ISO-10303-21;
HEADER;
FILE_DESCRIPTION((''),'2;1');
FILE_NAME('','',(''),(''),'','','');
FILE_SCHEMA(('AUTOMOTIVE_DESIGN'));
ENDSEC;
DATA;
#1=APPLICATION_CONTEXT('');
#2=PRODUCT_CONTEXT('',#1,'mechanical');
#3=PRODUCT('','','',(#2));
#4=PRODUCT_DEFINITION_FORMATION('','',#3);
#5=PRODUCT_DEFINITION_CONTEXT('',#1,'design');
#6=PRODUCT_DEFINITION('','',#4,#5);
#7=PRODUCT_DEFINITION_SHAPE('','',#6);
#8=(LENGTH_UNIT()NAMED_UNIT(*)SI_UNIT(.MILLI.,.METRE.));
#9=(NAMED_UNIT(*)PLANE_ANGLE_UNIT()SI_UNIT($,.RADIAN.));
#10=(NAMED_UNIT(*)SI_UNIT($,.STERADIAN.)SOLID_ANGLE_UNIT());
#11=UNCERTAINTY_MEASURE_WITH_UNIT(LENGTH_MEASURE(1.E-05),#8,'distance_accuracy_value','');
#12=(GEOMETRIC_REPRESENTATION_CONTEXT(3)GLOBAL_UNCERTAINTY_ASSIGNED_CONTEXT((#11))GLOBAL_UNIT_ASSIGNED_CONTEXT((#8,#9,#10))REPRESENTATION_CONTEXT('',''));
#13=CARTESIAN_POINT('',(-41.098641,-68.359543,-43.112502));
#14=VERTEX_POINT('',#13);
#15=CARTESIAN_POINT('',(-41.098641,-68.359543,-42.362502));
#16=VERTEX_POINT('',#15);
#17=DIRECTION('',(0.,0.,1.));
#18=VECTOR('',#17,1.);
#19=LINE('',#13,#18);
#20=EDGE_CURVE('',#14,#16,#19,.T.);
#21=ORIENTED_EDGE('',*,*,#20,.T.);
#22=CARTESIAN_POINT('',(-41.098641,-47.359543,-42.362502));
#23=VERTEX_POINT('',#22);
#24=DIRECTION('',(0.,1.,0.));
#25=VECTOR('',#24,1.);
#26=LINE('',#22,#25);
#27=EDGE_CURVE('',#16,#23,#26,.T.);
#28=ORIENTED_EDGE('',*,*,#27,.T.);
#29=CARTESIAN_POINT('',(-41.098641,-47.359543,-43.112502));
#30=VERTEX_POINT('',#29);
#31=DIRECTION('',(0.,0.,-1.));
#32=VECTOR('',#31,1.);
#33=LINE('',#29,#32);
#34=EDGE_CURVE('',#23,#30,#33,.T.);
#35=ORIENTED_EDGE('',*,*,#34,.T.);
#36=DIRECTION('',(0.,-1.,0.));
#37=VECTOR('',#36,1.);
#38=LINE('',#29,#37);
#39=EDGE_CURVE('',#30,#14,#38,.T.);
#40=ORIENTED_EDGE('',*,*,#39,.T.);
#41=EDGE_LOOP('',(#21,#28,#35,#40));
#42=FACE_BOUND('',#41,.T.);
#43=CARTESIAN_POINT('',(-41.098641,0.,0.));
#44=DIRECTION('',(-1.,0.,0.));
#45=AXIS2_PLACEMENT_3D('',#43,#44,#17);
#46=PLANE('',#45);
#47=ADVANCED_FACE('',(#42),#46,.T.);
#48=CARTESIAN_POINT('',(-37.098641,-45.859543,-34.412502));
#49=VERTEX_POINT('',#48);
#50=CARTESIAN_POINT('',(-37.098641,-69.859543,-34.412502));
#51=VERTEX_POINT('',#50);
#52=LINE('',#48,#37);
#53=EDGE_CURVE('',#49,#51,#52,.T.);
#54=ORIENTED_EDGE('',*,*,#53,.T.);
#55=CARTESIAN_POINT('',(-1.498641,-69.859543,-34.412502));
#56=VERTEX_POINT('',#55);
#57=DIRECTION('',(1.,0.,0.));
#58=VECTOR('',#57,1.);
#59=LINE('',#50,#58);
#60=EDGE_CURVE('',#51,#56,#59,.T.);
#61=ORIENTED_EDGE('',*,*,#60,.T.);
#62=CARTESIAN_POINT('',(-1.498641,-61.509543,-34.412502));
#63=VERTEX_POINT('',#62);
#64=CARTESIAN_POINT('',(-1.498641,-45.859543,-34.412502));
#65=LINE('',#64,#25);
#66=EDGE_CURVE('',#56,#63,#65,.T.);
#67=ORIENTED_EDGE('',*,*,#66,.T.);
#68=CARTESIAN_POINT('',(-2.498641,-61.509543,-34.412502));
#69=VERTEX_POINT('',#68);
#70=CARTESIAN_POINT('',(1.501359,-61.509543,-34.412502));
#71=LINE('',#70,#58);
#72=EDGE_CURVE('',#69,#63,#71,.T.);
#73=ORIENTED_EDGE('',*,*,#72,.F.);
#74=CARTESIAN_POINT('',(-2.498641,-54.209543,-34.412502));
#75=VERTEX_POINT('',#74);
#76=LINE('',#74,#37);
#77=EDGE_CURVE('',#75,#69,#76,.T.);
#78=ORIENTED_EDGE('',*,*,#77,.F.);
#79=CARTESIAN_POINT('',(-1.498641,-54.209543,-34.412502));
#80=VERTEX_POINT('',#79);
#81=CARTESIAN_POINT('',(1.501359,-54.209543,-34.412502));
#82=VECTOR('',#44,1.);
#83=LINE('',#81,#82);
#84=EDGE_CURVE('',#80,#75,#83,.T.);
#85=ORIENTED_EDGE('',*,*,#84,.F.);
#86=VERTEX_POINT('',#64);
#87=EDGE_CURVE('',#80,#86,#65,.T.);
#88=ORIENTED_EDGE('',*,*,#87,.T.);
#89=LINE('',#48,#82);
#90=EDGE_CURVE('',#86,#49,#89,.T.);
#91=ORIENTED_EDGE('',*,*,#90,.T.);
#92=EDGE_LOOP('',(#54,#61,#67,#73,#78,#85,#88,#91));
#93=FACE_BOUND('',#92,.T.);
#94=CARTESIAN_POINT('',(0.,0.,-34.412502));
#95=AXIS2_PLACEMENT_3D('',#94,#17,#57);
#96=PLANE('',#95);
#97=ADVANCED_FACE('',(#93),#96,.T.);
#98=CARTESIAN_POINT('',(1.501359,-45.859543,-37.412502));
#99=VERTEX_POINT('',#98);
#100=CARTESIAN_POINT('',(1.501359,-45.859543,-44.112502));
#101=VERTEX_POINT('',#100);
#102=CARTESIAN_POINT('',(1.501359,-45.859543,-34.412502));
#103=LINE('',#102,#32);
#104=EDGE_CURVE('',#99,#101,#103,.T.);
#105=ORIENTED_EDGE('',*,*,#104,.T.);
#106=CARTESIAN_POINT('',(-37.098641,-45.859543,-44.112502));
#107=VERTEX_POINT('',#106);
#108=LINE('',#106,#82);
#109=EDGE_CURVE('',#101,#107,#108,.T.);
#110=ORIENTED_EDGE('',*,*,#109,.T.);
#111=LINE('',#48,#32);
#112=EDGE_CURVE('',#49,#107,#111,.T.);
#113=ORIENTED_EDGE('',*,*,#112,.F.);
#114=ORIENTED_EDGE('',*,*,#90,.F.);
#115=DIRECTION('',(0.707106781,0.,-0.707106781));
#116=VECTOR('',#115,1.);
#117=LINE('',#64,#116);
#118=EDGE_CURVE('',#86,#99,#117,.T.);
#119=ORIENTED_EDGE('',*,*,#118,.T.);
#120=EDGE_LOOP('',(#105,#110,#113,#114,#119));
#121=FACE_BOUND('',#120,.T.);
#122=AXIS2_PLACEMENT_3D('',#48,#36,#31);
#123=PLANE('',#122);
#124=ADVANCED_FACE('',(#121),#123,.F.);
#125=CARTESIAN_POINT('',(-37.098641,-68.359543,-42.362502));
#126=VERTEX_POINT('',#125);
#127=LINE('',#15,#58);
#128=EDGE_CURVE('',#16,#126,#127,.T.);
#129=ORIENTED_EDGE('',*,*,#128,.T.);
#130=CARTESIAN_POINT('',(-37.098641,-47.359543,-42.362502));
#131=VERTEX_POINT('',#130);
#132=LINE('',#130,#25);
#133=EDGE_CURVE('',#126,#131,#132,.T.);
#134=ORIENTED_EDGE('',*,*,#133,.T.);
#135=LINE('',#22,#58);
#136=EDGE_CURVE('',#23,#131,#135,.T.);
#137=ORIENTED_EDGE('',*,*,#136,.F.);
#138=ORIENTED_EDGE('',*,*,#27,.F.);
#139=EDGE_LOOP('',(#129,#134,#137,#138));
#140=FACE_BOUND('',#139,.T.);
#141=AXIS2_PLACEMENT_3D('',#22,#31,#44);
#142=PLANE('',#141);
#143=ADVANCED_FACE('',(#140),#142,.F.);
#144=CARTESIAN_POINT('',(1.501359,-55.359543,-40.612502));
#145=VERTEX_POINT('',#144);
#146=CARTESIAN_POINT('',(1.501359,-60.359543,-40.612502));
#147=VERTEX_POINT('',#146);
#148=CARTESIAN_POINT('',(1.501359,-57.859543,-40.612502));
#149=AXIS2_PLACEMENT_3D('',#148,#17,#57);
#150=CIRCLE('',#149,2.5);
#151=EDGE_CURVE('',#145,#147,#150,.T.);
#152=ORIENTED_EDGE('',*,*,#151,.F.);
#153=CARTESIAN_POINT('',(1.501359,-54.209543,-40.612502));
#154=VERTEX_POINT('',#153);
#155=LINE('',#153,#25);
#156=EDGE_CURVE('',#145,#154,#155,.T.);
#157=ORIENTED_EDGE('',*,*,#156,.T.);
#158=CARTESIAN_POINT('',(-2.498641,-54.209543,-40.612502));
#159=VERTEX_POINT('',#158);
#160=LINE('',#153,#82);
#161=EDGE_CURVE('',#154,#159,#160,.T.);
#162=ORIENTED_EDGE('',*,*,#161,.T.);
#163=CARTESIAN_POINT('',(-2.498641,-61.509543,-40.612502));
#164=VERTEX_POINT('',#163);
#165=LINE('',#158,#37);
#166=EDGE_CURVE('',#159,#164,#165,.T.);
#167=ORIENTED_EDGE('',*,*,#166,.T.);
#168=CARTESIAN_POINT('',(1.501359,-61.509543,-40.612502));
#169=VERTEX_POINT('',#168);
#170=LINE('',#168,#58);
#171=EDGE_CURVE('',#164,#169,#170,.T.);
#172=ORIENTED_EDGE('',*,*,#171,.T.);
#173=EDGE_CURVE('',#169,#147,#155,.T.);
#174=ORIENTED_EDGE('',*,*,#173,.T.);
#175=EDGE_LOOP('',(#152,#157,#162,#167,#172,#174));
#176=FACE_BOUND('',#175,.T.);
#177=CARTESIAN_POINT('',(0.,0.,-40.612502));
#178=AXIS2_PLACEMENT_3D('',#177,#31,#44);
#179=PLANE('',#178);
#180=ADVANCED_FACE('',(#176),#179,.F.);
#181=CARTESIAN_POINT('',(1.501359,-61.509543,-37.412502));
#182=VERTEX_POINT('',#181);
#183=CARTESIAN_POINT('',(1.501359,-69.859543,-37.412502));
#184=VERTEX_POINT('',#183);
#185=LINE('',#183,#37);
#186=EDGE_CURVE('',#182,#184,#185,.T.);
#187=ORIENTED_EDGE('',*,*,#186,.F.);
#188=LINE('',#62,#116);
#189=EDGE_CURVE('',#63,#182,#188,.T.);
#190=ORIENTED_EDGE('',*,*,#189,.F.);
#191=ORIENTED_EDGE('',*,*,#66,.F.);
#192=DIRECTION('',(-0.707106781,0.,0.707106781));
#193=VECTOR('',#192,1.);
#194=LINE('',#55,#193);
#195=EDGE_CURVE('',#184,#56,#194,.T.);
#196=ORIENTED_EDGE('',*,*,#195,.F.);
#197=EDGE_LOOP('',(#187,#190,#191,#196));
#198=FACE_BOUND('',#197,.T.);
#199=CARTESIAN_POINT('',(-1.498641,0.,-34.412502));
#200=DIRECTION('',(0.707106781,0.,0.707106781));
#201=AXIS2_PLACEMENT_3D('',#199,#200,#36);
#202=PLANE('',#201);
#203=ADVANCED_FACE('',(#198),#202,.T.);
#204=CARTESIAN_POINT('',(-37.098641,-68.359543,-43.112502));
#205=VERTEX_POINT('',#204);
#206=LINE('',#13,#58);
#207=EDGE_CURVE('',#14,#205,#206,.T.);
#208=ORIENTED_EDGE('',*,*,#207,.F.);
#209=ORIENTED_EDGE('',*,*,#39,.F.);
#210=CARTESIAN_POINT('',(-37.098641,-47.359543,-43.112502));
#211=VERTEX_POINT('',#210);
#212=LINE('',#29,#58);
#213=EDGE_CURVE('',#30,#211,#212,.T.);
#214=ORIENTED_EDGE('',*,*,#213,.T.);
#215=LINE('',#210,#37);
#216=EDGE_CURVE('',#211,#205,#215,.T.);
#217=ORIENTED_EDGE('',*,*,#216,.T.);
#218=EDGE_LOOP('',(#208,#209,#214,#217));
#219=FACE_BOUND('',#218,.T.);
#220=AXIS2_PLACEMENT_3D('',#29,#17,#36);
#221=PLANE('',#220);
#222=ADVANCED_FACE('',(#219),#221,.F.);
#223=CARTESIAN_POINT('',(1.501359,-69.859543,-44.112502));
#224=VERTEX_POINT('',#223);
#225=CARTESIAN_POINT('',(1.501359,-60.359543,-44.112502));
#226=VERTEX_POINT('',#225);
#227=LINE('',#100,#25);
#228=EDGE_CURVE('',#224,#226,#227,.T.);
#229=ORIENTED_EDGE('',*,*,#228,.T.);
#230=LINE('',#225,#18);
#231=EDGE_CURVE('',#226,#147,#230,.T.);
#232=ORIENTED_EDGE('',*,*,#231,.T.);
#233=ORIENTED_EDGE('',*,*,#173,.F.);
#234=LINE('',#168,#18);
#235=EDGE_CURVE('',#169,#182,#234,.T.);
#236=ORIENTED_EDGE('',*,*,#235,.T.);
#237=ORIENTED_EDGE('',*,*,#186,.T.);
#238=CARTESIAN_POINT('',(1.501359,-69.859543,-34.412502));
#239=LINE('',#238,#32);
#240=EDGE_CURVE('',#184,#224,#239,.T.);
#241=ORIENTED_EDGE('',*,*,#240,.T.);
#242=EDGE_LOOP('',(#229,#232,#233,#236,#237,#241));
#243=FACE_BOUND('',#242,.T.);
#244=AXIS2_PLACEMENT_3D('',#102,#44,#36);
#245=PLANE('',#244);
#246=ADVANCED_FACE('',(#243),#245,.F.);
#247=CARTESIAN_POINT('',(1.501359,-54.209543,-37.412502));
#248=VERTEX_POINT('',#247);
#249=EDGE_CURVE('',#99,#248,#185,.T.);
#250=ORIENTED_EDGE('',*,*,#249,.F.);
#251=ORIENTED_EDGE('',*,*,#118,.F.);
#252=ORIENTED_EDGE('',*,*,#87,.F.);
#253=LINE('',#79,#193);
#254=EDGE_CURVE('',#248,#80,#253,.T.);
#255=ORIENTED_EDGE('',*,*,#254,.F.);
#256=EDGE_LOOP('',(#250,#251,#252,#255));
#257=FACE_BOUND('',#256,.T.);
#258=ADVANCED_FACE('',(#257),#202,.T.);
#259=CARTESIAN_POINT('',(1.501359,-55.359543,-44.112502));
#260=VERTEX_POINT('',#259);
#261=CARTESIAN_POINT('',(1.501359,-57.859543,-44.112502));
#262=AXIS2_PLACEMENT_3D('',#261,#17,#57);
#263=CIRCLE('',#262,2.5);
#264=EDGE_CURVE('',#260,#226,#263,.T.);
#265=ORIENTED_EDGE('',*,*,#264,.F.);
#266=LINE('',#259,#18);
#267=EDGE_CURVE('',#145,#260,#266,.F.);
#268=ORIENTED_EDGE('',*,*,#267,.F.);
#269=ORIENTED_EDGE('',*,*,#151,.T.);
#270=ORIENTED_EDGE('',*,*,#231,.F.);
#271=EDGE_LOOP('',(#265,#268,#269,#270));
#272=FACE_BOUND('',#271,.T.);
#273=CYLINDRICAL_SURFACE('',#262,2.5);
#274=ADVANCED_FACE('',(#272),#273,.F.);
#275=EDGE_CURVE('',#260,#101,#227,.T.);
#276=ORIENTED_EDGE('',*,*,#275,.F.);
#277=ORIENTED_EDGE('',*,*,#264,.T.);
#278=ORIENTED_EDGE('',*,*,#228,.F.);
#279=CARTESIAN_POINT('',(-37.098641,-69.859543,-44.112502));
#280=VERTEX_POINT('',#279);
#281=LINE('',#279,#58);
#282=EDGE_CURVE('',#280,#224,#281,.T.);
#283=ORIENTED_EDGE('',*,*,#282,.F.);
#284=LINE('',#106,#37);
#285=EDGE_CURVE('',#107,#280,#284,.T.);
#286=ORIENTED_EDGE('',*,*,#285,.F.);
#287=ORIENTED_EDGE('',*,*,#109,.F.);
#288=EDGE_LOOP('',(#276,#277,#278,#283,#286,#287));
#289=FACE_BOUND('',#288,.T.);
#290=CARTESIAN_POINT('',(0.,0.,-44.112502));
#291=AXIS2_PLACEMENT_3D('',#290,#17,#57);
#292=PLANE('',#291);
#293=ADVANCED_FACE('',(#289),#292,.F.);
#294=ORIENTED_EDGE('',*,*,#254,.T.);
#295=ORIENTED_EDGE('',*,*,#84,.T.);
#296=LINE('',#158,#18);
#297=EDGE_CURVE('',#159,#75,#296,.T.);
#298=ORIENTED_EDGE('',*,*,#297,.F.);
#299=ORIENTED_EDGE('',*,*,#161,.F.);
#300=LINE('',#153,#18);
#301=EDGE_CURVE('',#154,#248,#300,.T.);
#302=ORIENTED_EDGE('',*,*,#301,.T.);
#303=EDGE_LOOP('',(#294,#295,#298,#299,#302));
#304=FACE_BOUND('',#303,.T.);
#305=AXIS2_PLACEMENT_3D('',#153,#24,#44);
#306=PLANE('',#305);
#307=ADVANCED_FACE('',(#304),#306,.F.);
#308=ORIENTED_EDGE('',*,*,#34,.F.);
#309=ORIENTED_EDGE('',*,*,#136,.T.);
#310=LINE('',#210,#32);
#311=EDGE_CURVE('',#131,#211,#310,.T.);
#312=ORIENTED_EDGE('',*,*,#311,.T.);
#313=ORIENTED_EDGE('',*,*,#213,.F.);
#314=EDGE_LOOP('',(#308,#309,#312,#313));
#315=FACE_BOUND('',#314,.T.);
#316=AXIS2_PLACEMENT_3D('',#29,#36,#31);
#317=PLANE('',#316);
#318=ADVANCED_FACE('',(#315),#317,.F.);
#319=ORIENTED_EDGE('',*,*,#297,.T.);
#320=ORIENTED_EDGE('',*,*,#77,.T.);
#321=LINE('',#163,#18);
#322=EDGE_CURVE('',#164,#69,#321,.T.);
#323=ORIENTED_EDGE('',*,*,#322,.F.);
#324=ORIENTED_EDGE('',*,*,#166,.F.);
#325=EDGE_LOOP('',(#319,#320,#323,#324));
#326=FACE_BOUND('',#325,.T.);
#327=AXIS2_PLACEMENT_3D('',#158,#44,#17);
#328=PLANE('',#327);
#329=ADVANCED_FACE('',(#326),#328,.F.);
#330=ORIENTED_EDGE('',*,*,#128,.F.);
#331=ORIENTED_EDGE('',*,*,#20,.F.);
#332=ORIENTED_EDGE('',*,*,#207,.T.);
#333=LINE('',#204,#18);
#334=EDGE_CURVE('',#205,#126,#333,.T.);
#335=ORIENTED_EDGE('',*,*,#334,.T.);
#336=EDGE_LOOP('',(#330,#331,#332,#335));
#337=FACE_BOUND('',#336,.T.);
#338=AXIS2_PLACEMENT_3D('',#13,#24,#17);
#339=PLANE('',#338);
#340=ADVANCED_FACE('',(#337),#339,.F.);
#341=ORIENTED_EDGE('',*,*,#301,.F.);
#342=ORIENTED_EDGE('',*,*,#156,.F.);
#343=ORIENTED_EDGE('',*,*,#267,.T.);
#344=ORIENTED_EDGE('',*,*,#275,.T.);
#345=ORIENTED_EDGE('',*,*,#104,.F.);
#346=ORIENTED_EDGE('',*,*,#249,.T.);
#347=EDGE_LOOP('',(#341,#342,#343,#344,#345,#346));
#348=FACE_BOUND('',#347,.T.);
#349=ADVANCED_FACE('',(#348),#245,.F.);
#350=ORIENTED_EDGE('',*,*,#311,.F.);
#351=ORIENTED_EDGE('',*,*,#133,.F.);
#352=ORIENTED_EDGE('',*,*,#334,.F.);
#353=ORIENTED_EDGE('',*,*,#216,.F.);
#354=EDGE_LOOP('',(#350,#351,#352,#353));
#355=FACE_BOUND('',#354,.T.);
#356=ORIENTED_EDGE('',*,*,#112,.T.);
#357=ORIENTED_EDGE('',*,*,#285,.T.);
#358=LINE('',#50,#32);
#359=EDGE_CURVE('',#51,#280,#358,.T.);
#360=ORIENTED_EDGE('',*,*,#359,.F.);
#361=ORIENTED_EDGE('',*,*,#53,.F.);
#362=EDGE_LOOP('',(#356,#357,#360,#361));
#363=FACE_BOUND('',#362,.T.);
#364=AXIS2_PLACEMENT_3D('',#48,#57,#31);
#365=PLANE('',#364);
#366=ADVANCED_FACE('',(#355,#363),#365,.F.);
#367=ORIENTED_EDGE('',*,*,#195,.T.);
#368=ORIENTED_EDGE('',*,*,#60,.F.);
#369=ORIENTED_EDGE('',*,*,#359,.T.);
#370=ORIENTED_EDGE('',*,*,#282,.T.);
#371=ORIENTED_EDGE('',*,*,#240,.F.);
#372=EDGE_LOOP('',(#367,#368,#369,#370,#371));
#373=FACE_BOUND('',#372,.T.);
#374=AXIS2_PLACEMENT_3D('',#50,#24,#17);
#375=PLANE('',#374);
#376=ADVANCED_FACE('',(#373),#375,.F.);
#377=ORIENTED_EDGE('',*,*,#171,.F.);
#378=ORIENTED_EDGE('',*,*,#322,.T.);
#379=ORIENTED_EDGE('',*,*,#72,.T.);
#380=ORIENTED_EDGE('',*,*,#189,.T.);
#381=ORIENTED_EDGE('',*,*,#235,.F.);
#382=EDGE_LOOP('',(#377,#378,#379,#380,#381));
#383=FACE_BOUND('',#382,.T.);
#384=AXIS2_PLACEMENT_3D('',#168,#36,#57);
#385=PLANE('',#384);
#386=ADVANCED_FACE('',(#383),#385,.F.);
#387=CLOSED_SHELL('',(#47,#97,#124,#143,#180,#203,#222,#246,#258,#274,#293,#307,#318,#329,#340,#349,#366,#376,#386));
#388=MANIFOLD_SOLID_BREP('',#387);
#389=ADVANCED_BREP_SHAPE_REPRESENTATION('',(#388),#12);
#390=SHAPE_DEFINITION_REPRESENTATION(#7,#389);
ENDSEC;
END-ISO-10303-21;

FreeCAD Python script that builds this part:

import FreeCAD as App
import Part
import Sketcher

V = App.Vector
Q = App.Units.Quantity


def edges_at(feature, points):
    """Names of the edges that pass closest to the given points."""
    edges = feature.Shape.Edges
    near = lambda p: min(range(len(edges)), key=lambda i: edges[i].distToShape(Part.Vertex(*p))[0])
    return sorted({f"Edge{near(p) + 1}" for p in points})

doc = App.newDocument("Part")
body = doc.addObject("PartDesign::Body", "Body")

# Sketch on XY plane
sketch1 = doc.addObject("Sketcher::SketchObject", "Sketch")
body.addObject(sketch1)
sketch1.AttachmentSupport = (doc.XY_Plane, [""])
sketch1.MapMode = "FlatFace"
sketch1.AttachmentOffset = App.Placement(V(0, 0, -44.112502), App.Rotation())
sketch1.addGeometry(Part.LineSegment(V(-37, -46, 0), V(-37, -70, 0)), False)
sketch1.addGeometry(Part.LineSegment(V(-37, -70, 0), V(2, -70, 0)), False)
sketch1.addGeometry(Part.LineSegment(V(2, -70, 0), V(2, -46, 0)), False)
sketch1.addGeometry(Part.LineSegment(V(2, -46, 0), V(-37, -46, 0)), False)
sketch1.addConstraint(Sketcher.Constraint("Coincident", 0, 2, 1, 1))
sketch1.addConstraint(Sketcher.Constraint("Coincident", 1, 2, 2, 1))
sketch1.addConstraint(Sketcher.Constraint("Coincident", 2, 2, 3, 1))
sketch1.addConstraint(Sketcher.Constraint("Coincident", 3, 2, 0, 1))
sketch1.addConstraint(Sketcher.Constraint("Vertical", 0))
sketch1.addConstraint(Sketcher.Constraint("Horizontal", 1))
sketch1.addConstraint(Sketcher.Constraint("Vertical", 2))
sketch1.addConstraint(Sketcher.Constraint("Horizontal", 3))
sketch1.addConstraint(Sketcher.Constraint("DistanceY", 0, 2, 0, 1, Q("24 mm")))
sketch1.addConstraint(Sketcher.Constraint("DistanceX", 1, 1, 1, 2, Q("38.6 mm")))
sketch1.addConstraint(Sketcher.Constraint("DistanceX", 0, 2, -1, 1, Q("37.098641 mm")))
sketch1.addConstraint(Sketcher.Constraint("DistanceY", 0, 2, -1, 1, Q("69.859543 mm")))
pad1 = doc.addObject("PartDesign::Pad", "Pad")
body.addObject(pad1)
pad1.Profile = sketch1
pad1.Length = 9.7

# Sketch on YZ plane
sketch2 = doc.addObject("Sketcher::SketchObject", "Sketch001")
body.addObject(sketch2)
sketch2.AttachmentSupport = (doc.YZ_Plane, [""])
sketch2.MapMode = "FlatFace"
sketch2.AttachmentOffset = App.Placement(V(0, 0, -37.098641), App.Rotation())
sketch2.addGeometry(Part.LineSegment(V(-47.4, -43.1, 0), V(-68.4, -43.1, 0)), False)
sketch2.addGeometry(Part.LineSegment(V(-68.4, -43.1, 0), V(-68.4, -42.4, 0)), False)
sketch2.addGeometry(Part.LineSegment(V(-68.4, -42.4, 0), V(-47.4, -42.4, 0)), False)
sketch2.addGeometry(Part.LineSegment(V(-47.4, -42.4, 0), V(-47.4, -43.1, 0)), False)
sketch2.addConstraint(Sketcher.Constraint("Coincident", 0, 2, 1, 1))
sketch2.addConstraint(Sketcher.Constraint("Coincident", 1, 2, 2, 1))
sketch2.addConstraint(Sketcher.Constraint("Coincident", 2, 2, 3, 1))
sketch2.addConstraint(Sketcher.Constraint("Coincident", 3, 2, 0, 1))
sketch2.addConstraint(Sketcher.Constraint("Horizontal", 0))
sketch2.addConstraint(Sketcher.Constraint("Vertical", 1))
sketch2.addConstraint(Sketcher.Constraint("Horizontal", 2))
sketch2.addConstraint(Sketcher.Constraint("Vertical", 3))
sketch2.addConstraint(Sketcher.Constraint("DistanceX", 0, 2, 0, 1, Q("21 mm")))
sketch2.addConstraint(Sketcher.Constraint("DistanceY", 1, 1, 1, 2, Q("0.75 mm")))
sketch2.addConstraint(Sketcher.Constraint("DistanceX", 0, 2, -1, 1, Q("68.359543 mm")))
sketch2.addConstraint(Sketcher.Constraint("DistanceY", 0, 2, -1, 1, Q("43.112502 mm")))
pad2 = doc.addObject("PartDesign::Pad", "Pad001")
body.addObject(pad2)
pad2.Profile = sketch2
pad2.Length = 4
pad2.Reversed = True
doc.recompute()

chamfer = doc.addObject("PartDesign::Chamfer", "Chamfer")
body.addObject(chamfer)
chamfer.Base = (pad2, edges_at(pad2, [(1.501, -57.86, -34.413)]))
chamfer.Size = 3

# Sketch on XY plane
sketch3 = doc.addObject("Sketcher::SketchObject", "Sketch002")
body.addObject(sketch3)
sketch3.AttachmentSupport = (doc.XY_Plane, [""])
sketch3.MapMode = "FlatFace"
sketch3.AttachmentOffset = App.Placement(V(0, 0, -34.412502), App.Rotation())
sketch3.addGeometry(Part.LineSegment(V(-2.5, -54.2, 0), V(-2.5, -61.5, 0)), False)
sketch3.addGeometry(Part.LineSegment(V(-2.5, -61.5, 0), V(1.5, -61.5, 0)), False)
sketch3.addGeometry(Part.LineSegment(V(1.5, -61.5, 0), V(1.5, -54.2, 0)), False)
sketch3.addGeometry(Part.LineSegment(V(1.5, -54.2, 0), V(-2.5, -54.2, 0)), False)
sketch3.addConstraint(Sketcher.Constraint("Coincident", 0, 2, 1, 1))
sketch3.addConstraint(Sketcher.Constraint("Coincident", 1, 2, 2, 1))
sketch3.addConstraint(Sketcher.Constraint("Coincident", 2, 2, 3, 1))
sketch3.addConstraint(Sketcher.Constraint("Coincident", 3, 2, 0, 1))
sketch3.addConstraint(Sketcher.Constraint("Vertical", 0))
sketch3.addConstraint(Sketcher.Constraint("Horizontal", 1))
sketch3.addConstraint(Sketcher.Constraint("Vertical", 2))
sketch3.addConstraint(Sketcher.Constraint("Horizontal", 3))
sketch3.addConstraint(Sketcher.Constraint("DistanceX", 1, 1, 1, 2, Q("4 mm")))
sketch3.addConstraint(Sketcher.Constraint("DistanceY", 0, 2, 0, 1, Q("7.3 mm")))
sketch3.addConstraint(Sketcher.Constraint("DistanceX", 0, 2, -1, 1, Q("2.498641 mm")))
sketch3.addConstraint(Sketcher.Constraint("DistanceY", 0, 2, -1, 1, Q("61.509543 mm")))
pocket1 = doc.addObject("PartDesign::Pocket", "Pocket")
body.addObject(pocket1)
pocket1.Profile = sketch3
pocket1.Length = 6.2

# Sketch on XY plane
sketch4 = doc.addObject("Sketcher::SketchObject", "Sketch003")
body.addObject(sketch4)
sketch4.AttachmentSupport = (doc.XY_Plane, [""])
sketch4.MapMode = "FlatFace"
sketch4.AttachmentOffset = App.Placement(V(0, 0, -40.612502), App.Rotation())
sketch4.addGeometry(Part.Circle(V(1.5, -57.9, 0), V(0, 0, 1), 2.5), False)
sketch4.addConstraint(Sketcher.Constraint("Diameter", 0, Q("5 mm")))
sketch4.addConstraint(Sketcher.Constraint("DistanceX", -1, 1, 0, 3, Q("1.501359 mm")))
sketch4.addConstraint(Sketcher.Constraint("DistanceY", 0, 3, -1, 1, Q("57.859543 mm")))
pocket2 = doc.addObject("PartDesign::Pocket", "Pocket001")
body.addObject(pocket2)
pocket2.Profile = sketch4
pocket2.Type = "ThroughAll"

doc.recompute()
